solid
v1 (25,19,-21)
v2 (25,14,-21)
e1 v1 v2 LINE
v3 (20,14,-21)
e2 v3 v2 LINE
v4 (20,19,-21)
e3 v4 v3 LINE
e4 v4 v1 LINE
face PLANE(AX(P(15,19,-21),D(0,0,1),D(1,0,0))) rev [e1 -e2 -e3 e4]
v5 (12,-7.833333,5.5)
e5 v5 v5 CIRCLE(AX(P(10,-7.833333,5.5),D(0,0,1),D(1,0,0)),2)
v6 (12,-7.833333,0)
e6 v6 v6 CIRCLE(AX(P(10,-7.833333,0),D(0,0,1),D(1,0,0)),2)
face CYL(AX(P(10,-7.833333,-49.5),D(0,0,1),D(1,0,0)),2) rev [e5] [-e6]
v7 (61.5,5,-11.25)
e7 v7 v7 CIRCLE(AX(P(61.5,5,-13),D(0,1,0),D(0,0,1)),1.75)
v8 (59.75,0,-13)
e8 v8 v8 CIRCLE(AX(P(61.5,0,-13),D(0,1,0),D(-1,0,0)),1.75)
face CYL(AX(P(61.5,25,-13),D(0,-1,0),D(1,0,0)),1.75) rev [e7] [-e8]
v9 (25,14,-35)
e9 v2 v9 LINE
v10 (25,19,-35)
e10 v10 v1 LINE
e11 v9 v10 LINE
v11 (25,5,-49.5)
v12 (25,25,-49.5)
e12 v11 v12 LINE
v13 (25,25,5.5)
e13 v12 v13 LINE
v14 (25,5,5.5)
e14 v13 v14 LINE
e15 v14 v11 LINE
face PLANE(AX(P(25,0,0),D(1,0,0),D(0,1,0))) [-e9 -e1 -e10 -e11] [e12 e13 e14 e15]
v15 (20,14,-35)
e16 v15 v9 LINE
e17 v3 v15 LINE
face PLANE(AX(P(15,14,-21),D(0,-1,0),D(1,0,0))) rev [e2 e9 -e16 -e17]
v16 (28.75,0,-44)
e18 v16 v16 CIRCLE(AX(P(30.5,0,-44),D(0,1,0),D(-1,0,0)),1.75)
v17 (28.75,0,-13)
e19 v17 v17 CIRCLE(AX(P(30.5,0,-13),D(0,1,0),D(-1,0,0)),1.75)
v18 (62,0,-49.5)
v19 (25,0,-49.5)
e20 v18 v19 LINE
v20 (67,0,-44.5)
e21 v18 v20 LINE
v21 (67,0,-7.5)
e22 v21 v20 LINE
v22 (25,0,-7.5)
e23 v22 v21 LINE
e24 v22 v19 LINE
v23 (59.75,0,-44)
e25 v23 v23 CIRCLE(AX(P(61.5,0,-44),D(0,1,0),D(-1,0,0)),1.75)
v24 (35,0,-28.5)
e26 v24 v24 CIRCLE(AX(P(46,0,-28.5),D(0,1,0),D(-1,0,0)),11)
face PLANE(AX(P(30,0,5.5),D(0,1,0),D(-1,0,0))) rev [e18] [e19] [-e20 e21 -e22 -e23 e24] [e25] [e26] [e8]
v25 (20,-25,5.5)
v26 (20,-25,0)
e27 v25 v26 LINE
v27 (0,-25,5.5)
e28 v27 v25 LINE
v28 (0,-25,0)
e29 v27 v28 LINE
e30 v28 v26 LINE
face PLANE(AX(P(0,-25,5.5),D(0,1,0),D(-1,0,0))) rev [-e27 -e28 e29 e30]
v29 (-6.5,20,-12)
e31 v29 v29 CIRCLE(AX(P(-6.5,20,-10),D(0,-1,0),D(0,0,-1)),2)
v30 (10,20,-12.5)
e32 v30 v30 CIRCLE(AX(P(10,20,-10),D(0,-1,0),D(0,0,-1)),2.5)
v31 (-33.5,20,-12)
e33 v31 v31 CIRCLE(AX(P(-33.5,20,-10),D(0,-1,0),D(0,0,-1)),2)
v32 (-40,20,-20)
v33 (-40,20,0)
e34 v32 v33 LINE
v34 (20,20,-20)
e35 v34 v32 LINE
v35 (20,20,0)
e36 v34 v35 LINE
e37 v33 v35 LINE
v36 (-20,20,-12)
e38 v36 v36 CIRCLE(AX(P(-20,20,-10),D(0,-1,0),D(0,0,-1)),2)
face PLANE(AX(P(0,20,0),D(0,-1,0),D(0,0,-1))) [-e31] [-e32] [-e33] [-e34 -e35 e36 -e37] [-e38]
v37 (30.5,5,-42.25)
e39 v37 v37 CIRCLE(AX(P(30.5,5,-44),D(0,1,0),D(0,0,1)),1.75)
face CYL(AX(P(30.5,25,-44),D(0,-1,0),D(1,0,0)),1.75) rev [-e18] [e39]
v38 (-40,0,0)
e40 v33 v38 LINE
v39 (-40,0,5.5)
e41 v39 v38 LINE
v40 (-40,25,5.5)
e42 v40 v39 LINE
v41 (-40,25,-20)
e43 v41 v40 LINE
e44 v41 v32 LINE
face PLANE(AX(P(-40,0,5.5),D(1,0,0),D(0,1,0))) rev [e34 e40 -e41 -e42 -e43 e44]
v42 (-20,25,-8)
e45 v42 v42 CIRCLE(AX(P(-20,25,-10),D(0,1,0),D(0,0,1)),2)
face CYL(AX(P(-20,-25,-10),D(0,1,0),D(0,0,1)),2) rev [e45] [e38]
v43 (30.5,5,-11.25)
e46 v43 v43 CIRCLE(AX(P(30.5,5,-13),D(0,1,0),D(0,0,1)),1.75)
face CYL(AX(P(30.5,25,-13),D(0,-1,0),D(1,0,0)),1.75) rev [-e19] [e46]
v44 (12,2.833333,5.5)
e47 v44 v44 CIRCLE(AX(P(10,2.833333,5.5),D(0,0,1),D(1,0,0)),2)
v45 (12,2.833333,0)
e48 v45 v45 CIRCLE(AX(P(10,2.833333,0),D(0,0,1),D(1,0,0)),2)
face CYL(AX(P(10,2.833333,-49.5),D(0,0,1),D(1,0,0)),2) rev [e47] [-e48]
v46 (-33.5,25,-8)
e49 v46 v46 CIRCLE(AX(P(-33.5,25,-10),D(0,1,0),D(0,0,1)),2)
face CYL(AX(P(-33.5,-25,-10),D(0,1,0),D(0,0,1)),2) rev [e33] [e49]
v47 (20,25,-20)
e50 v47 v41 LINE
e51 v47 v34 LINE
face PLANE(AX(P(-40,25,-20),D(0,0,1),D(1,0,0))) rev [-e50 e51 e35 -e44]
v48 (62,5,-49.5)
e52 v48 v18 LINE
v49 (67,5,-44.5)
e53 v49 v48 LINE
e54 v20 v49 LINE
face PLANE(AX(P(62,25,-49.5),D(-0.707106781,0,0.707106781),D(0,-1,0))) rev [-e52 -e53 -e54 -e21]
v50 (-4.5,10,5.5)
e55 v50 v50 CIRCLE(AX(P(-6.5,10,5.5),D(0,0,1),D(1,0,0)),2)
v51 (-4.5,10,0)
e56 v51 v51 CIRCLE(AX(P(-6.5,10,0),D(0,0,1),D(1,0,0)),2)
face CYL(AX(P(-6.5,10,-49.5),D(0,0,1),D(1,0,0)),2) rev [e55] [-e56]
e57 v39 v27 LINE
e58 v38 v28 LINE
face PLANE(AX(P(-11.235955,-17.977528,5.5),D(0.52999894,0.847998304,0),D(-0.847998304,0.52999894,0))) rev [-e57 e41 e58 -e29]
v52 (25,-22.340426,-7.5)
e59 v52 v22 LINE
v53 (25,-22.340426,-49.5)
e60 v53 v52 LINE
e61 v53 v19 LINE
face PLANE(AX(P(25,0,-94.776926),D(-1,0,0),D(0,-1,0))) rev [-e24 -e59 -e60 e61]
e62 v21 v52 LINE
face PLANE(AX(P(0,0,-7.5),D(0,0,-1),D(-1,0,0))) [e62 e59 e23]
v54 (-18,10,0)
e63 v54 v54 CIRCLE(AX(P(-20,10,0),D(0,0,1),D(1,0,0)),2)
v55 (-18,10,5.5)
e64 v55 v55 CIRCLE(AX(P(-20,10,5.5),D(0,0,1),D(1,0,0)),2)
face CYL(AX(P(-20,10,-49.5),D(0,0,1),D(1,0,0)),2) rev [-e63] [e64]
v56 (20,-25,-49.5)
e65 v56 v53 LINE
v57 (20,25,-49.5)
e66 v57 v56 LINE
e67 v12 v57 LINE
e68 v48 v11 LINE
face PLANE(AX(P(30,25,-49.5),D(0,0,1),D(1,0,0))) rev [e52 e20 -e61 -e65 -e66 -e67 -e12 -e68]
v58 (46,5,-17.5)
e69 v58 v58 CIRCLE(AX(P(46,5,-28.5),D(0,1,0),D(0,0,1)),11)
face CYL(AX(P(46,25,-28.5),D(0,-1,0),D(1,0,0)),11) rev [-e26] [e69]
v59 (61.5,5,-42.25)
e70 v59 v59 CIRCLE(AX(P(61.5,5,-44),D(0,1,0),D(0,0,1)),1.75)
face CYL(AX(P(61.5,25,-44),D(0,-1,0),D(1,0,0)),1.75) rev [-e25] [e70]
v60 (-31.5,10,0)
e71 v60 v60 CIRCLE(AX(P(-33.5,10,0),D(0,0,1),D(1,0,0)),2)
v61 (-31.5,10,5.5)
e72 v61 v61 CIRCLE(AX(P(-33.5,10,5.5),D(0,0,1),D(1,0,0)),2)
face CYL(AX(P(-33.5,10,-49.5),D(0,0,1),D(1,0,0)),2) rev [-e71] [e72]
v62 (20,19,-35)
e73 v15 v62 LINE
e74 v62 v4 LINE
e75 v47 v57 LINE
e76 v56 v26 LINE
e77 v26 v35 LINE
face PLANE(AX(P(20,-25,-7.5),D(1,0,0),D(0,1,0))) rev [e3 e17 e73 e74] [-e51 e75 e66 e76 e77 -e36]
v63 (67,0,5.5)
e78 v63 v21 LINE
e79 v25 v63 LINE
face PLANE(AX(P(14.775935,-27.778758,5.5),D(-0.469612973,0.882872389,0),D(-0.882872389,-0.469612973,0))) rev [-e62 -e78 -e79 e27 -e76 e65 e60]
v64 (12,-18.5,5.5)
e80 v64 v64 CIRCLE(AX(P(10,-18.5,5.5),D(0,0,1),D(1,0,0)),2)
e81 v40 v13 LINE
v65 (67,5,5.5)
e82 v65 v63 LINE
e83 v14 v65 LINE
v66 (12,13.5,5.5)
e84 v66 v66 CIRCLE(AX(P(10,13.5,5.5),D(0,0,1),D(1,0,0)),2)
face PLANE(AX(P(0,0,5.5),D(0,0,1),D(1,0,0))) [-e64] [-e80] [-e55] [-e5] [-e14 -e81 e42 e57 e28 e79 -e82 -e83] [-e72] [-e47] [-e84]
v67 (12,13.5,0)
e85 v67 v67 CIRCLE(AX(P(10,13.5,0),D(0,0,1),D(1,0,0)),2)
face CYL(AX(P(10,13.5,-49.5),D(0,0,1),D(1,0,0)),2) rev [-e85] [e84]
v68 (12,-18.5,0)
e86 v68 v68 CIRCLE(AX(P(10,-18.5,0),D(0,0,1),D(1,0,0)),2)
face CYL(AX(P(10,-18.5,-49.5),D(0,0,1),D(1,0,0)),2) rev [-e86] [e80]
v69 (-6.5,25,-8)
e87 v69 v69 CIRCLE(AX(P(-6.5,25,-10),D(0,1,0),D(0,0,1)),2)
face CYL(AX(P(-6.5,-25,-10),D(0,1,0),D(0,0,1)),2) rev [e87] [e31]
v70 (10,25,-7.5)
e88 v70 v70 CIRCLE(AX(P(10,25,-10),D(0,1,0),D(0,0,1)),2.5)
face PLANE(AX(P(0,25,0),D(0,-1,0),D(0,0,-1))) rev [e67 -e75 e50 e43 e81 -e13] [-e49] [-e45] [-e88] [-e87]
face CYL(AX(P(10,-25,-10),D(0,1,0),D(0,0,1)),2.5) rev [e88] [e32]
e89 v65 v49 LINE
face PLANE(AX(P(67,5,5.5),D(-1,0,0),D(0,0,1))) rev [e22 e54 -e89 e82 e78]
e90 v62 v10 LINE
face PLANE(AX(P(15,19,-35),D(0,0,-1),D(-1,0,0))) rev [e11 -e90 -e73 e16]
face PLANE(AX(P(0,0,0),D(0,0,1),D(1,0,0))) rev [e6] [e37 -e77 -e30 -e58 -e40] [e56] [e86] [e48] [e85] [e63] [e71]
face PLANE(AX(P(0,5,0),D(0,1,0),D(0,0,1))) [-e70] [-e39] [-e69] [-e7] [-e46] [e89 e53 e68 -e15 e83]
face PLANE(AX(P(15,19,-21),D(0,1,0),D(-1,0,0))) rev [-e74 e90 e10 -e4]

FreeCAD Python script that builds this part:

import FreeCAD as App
import Part
import Sketcher

V = App.Vector


def edges_at(feature, points):
    """Names of the edges that pass closest to the given points."""
    edges = feature.Shape.Edges
    near = lambda p: min(range(len(edges)), key=lambda i: edges[i].distToShape(Part.Vertex(*p))[0])
    return sorted({f"Edge{near(p) + 1}" for p in points})


def add_polygon(sketch, points):
    """Adds a closed chain of lines whose ends are joined by coincident constraints."""
    first, n = sketch.GeometryCount, len(points)
    for a, b in zip(points, points[1:] + points[:1]):
        sketch.addGeometry(Part.LineSegment(App.Vector(*a, 0), App.Vector(*b, 0)), False)
    for i in range(n):
        sketch.addConstraint(Sketcher.Constraint("Coincident", first + i, 2, first + (i + 1) % n, 1))

doc = App.newDocument("Part")
body = doc.addObject("PartDesign::Body", "Body")

sketch1 = doc.addObject("Sketcher::SketchObject", "Sketch")
body.addObject(sketch1)
sketch1.AttachmentSupport = (doc.XY_Plane, [""])
sketch1.MapMode = "FlatFace"
add_polygon(sketch1, [(-40, 20), (-40, 0), (0, -25), (20, -25), (67, 0), (25, 0), (25, 20)])
sketch1.addConstraint([
    Sketcher.Constraint("Vertical", 0),
    Sketcher.Constraint("Horizontal", 2),
    Sketcher.Constraint("Horizontal", 4),
    Sketcher.Constraint("Vertical", 5),
    Sketcher.Constraint("Horizontal", 6),
    Sketcher.Constraint("PointOnObject", 0, 2, -1),
    Sketcher.Constraint("PointOnObject", 1, 2, -2),
    Sketcher.Constraint("PointOnObject", 3, 2, -1),
    Sketcher.Constraint("Equal", 2, 0),
    Sketcher.Constraint("DistanceX", 2, 1, 2, 2, 20.0),
    Sketcher.Constraint("DistanceX", 4, 2, 4, 1, 42.0),
    Sketcher.Constraint("DistanceX", 6, 2, 6, 1, 65.0),
    Sketcher.Constraint("DistanceX", 0, 2, -1, 1, 40.0),
    Sketcher.Constraint("DistanceY", 1, 2, -1, 1, 25.0),
])
pad1 = doc.addObject("PartDesign::Pad", "Pad")
body.addObject(pad1)
pad1.Profile = sketch1
pad1.Length = 5.5

sketch2 = doc.addObject("Sketcher::SketchObject", "Sketch001")
body.addObject(sketch2)
sketch2.AttachmentSupport = (doc.XZ_Plane, [""])
sketch2.MapMode = "FlatFace"
sketch2.AttachmentOffset = App.Placement(V(0, 0, -20), App.Rotation())
add_polygon(sketch2, [(-40, -20), (-40, 5.5), (25, 5.5), (25, -20)])
sketch2.addConstraint([
    Sketcher.Constraint("Vertical", 0),
    Sketcher.Constraint("Horizontal", 1),
    Sketcher.Constraint("Vertical", 2),
    Sketcher.Constraint("Horizontal", 3),
    Sketcher.Constraint("DistanceX", 1, 1, 1, 2, 65.0),
    Sketcher.Constraint("DistanceY", 0, 1, 0, 2, 25.5),
    Sketcher.Constraint("DistanceX", 0, 2, -1, 1, 40.0),
    Sketcher.Constraint("DistanceY", 2, 2, -1, 1, 20.0),
])
pad2 = doc.addObject("PartDesign::Pad", "Pad001")
body.addObject(pad2)
pad2.Profile = sketch2
pad2.Length = 5
pad2.Reversed = True

sketch3 = doc.addObject("Sketcher::SketchObject", "Sketch002")
body.addObject(sketch3)
sketch3.AttachmentSupport = (doc.YZ_Plane, [""])
sketch3.MapMode = "FlatFace"
sketch3.AttachmentOffset = App.Placement(V(0, 0, 25), App.Rotation())
add_polygon(sketch3, [(25, 5.5), (0, 5.5), (0, -49.5), (25, -49.5)])
sketch3.addConstraint([
    Sketcher.Constraint("Horizontal", 0),
    Sketcher.Constraint("Vertical", 1),
    Sketcher.Constraint("Horizontal", 2),
    Sketcher.Constraint("Vertical", 3),
    Sketcher.Constraint("PointOnObject", 0, 2, -2),
    Sketcher.Constraint("DistanceX", 0, 2, 0, 1, 25.0),
    Sketcher.Constraint("DistanceY", 1, 2, 1, 1, 55.0),
    Sketcher.Constraint("DistanceY", -1, 1, 0, 2, 5.5),
])
pad3 = doc.addObject("PartDesign::Pad", "Pad002")
body.addObject(pad3)
pad3.Profile = sketch3
pad3.Length = 5

sketch4 = doc.addObject("Sketcher::SketchObject", "Sketch003")
body.addObject(sketch4)
sketch4.AttachmentSupport = (doc.XZ_Plane, [""])
sketch4.MapMode = "FlatFace"
add_polygon(sketch4, [(25, -49.5), (25, 5.5), (67, 5.5), (67, -49.5)])
sketch4.addConstraint([
    Sketcher.Constraint("Vertical", 0),
    Sketcher.Constraint("Horizontal", 1),
    Sketcher.Constraint("Vertical", 2),
    Sketcher.Constraint("Horizontal", 3),
    Sketcher.Constraint("DistanceX", 1, 1, 1, 2, 42.0),
    Sketcher.Constraint("DistanceY", 0, 1, 0, 2, 55.0),
    Sketcher.Constraint("DistanceX", -1, 1, 0, 2, 25.0),
    Sketcher.Constraint("DistanceY", -1, 1, 0, 2, 5.5),
])
pad4 = doc.addObject("PartDesign::Pad", "Pad003")
body.addObject(pad4)
pad4.Profile = sketch4
pad4.Length = 5
pad4.Reversed = True

sketch5 = doc.addObject("Sketcher::SketchObject", "Sketch004")
body.addObject(sketch5)
sketch5.AttachmentSupport = (doc.XY_Plane, [""])
sketch5.MapMode = "FlatFace"
add_polygon(sketch5, [(20, -25), (20, 20), (25, 20), (25, 0), (67, 0)])
sketch5.addConstraint([
    Sketcher.Constraint("Vertical", 0),
    Sketcher.Constraint("Horizontal", 1),
    Sketcher.Constraint("Vertical", 2),
    Sketcher.Constraint("Horizontal", 3),
    Sketcher.Constraint("PointOnObject", 2, 2, -1),
    Sketcher.Constraint("DistanceX", 1, 1, 1, 2, 5.0),
    Sketcher.Constraint("DistanceX", 3, 1, 3, 2, 42.0),
    Sketcher.Constraint("DistanceY", 0, 1, 0, 2, 45.0),
    Sketcher.Constraint("DistanceY", 2, 2, 2, 1, 20.0),
    Sketcher.Constraint("DistanceX", -1, 1, 0, 2, 20.0),
])
pad5 = doc.addObject("PartDesign::Pad", "Pad004")
body.addObject(pad5)
pad5.Profile = sketch5
pad5.Length = 7.5
pad5.Reversed = True

sketch6 = doc.addObject("Sketcher::SketchObject", "Sketch005")
body.addObject(sketch6)
sketch6.AttachmentSupport = (doc.XY_Plane, [""])
sketch6.MapMode = "FlatFace"
sketch6.AttachmentOffset = App.Placement(V(0, 0, -7.5), App.Rotation())
add_polygon(sketch6, [(25, -22.340426), (20, -25), (20, 20), (25, 20)])
sketch6.addConstraint([
    Sketcher.Constraint("Vertical", 1),
    Sketcher.Constraint("Horizontal", 2),
    Sketcher.Constraint("Vertical", 3),
    Sketcher.Constraint("DistanceX", 2, 1, 2, 2, 5.0),
    Sketcher.Constraint("DistanceY", 1, 1, 1, 2, 45.0),
    Sketcher.Constraint("DistanceX", -1, 1, 0, 2, 20.0),
    Sketcher.Constraint("DistanceY", 0, 2, -1, 1, 25.0),
    Sketcher.Constraint("DistanceY", 3, 2, 3, 1, 42.340426),
])
pad6 = doc.addObject("PartDesign::Pad", "Pad005")
body.addObject(pad6)
pad6.Profile = sketch6
pad6.Length = 42
pad6.Reversed = True

sketch7 = doc.addObject("Sketcher::SketchObject", "Sketch006")
body.addObject(sketch7)
sketch7.AttachmentSupport = (doc.XZ_Plane, [""])
sketch7.MapMode = "FlatFace"
sketch7.AttachmentOffset = App.Placement(V(0, 0, -20), App.Rotation())
add_polygon(sketch7, [(20, -49.5), (20, -20), (25, -20), (25, -49.5)])
sketch7.addConstraint([
    Sketcher.Constraint("Vertical", 0),
    Sketcher.Constraint("Horizontal", 1),
    Sketcher.Constraint("Vertical", 2),
    Sketcher.Constraint("Horizontal", 3),
    Sketcher.Constraint("DistanceX", 1, 1, 1, 2, 5.0),
    Sketcher.Constraint("DistanceY", 0, 1, 0, 2, 29.5),
    Sketcher.Constraint("DistanceX", -1, 1, 0, 2, 20.0),
    Sketcher.Constraint("DistanceY", 0, 2, -1, 1, 20.0),
])
pad7 = doc.addObject("PartDesign::Pad", "Pad006")
body.addObject(pad7)
pad7.Profile = sketch7
pad7.Length = 5
pad7.Reversed = True

sketch8 = doc.addObject("Sketcher::SketchObject", "Sketch007")
body.addObject(sketch8)
sketch8.AttachmentSupport = (doc.YZ_Plane, [""])
sketch8.MapMode = "FlatFace"
sketch8.AttachmentOffset = App.Placement(V(0, 0, 30), App.Rotation())
add_polygon(sketch8, [(25, 5.5), (5, 5.5), (5, -49.5), (25, -49.5)])
sketch8.addConstraint([
    Sketcher.Constraint("Horizontal", 0),
    Sketcher.Constraint("Vertical", 1),
    Sketcher.Constraint("Horizontal", 2),
    Sketcher.Constraint("Vertical", 3),
    Sketcher.Constraint("DistanceX", 0, 2, 0, 1, 20.0),
    Sketcher.Constraint("DistanceY", 1, 2, 1, 1, 55.0),
    Sketcher.Constraint("DistanceX", -1, 1, 0, 2, 5.0),
    Sketcher.Constraint("DistanceY", -1, 1, 0, 2, 5.5),
])
pocket1 = doc.addObject("PartDesign::Pocket", "Pocket")
body.addObject(pocket1)
pocket1.Profile = sketch8
pocket1.Length = 5

sketch9 = doc.addObject("Sketcher::SketchObject", "Sketch008")
body.addObject(sketch9)
sketch9.AttachmentSupport = (doc.XZ_Plane, [""])
sketch9.MapMode = "FlatFace"
sketch9.AttachmentOffset = App.Placement(V(0, 0, -25), App.Rotation())
sketch9.addGeometry([
    Part.Circle(V(10, -10, 0), V(0, 0, 1), 2.5),
    Part.Circle(V(-33.5, -10, 0), V(0, 0, 1), 2),
    Part.Circle(V(-20, -10, 0), V(0, 0, 1), 2),
    Part.Circle(V(-6.5, -10, 0), V(0, 0, 1), 2),
], False)
sketch9.addConstraint([
    Sketcher.Constraint("Equal", 1, 2),
    Sketcher.Constraint("Equal", 2, 3),
    Sketcher.Constraint("Horizontal", 0, 3, 1, 3),
    Sketcher.Constraint("Horizontal", 1, 3, 2, 3),
    Sketcher.Constraint("Horizontal", 2, 3, 3, 3),
    Sketcher.Constraint("Diameter", 0, 5.0),
    Sketcher.Constraint("Diameter", 1, 4.0),
    Sketcher.Constraint("DistanceX", -1, 1, 0, 3, 10.0),
    Sketcher.Constraint("DistanceY", 0, 3, -1, 1, 10.0),
    Sketcher.Constraint("DistanceX", 2, 3, -1, 1, 20.0),
    Sketcher.Constraint("DistanceX", 1, 3, 3, 3, 27.0),
    Sketcher.Constraint("DistanceX", 1, 3, -1, 1, 33.5),
])
pocket2 = doc.addObject("PartDesign::Pocket", "Pocket001")
body.addObject(pocket2)
pocket2.Profile = sketch9
pocket2.Type = "ThroughAll"
pocket2.Reversed = True

sketch10 = doc.addObject("Sketcher::SketchObject", "Sketch009")
body.addObject(sketch10)
sketch10.AttachmentSupport = (doc.XY_Plane, [""])
sketch10.MapMode = "FlatFace"
sketch10.AttachmentOffset = App.Placement(V(0, 0, 5.5), App.Rotation())
sketch10.addGeometry([
    Part.Circle(V(-33.5, 10, 0), V(0, 0, 1), 2),
    Part.Circle(V(-20, 10, 0), V(0, 0, 1), 2),
    Part.Circle(V(-6.5, 10, 0), V(0, 0, 1), 2),
    Part.Circle(V(10, -18.5, 0), V(0, 0, 1), 2),
    Part.Circle(V(10, -7.833333, 0), V(0, 0, 1), 2),
    Part.Circle(V(10, 2.833333, 0), V(0, 0, 1), 2),
    Part.Circle(V(10, 13.5, 0), V(0, 0, 1), 2),
], False)
sketch10.addConstraint([
    Sketcher.Constraint("Equal", 0, 1),
    Sketcher.Constraint("Equal", 1, 2),
    Sketcher.Constraint("Equal", 2, 3),
    Sketcher.Constraint("Equal", 3, 4),
    Sketcher.Constraint("Equal", 4, 5),
    Sketcher.Constraint("Equal", 5, 6),
    Sketcher.Constraint("Horizontal", 0, 3, 1, 3),
    Sketcher.Constraint("Horizontal", 1, 3, 2, 3),
    Sketcher.Constraint("Vertical", 3, 3, 4, 3),
    Sketcher.Constraint("Vertical", 4, 3, 5, 3),
    Sketcher.Constraint("Vertical", 5, 3, 6, 3),
    Sketcher.Constraint("Diameter", 0, 4.0),
    Sketcher.Constraint("DistanceY", -1, 1, 0, 3, 10.0),
    Sketcher.Constraint("DistanceX", 1, 3, -1, 1, 20.0),
    Sketcher.Constraint("DistanceX", -1, 1, 3, 3, 10.0),
    Sketcher.Constraint("DistanceX", 0, 3, 2, 3, 27.0),
    Sketcher.Constraint("DistanceY", 3, 3, 6, 3, 32.0),
    Sketcher.Constraint("DistanceX", 0, 3, -1, 1, 33.5),
    Sketcher.Constraint("DistanceY", 3, 3, -1, 1, 18.5),
    Sketcher.Constraint("DistanceY", 4, 3, -1, 1, 7.833333),
    Sketcher.Constraint("DistanceY", -1, 1, 5, 3, 2.833333),
])
pocket3 = doc.addObject("PartDesign::Pocket", "Pocket002")
body.addObject(pocket3)
pocket3.Profile = sketch10
pocket3.Type = "ThroughAll"

sketch11 = doc.addObject("Sketcher::SketchObject", "Sketch010")
body.addObject(sketch11)
sketch11.AttachmentSupport = (doc.XZ_Plane, [""])
sketch11.MapMode = "FlatFace"
sketch11.addGeometry([
    Part.Circle(V(61.5, -44, 0), V(0, 0, 1), 1.75),
    Part.Circle(V(61.5, -13, 0), V(0, 0, 1), 1.75),
    Part.Circle(V(30.5, -13, 0), V(0, 0, 1), 1.75),
    Part.Circle(V(30.5, -44, 0), V(0, 0, 1), 1.75),
    Part.Circle(V(46, -28.5, 0), V(0, 0, 1), 11),
], False)
sketch11.addConstraint([
    Sketcher.Constraint("Equal", 0, 1),
    Sketcher.Constraint("Equal", 1, 2),
    Sketcher.Constraint("Equal", 2, 3),
    Sketcher.Constraint("Horizontal", 1, 3, 2, 3),
    Sketcher.Constraint("Horizontal", 0, 3, 3, 3),
    Sketcher.Constraint("Vertical", 0, 3, 1, 3),
    Sketcher.Constraint("Vertical", 2, 3, 3, 3),
    Sketcher.Constraint("Diameter", 4, 22.0),
    Sketcher.Constraint("Diameter", 0, 3.5),
    Sketcher.Constraint("DistanceY", 0, 3, -1, 1, 44.0),
    Sketcher.Constraint("DistanceY", 1, 3, -1, 1, 13.0),
    Sketcher.Constraint("DistanceX", -1, 1, 4, 3, 46.0),
    Sketcher.Constraint("DistanceX", 2, 3, 1, 3, 31.0),
    Sketcher.Constraint("DistanceX", -1, 1, 0, 3, 61.5),
    Sketcher.Constraint("DistanceY", 4, 3, -1, 1, 28.5),
])
pocket4 = doc.addObject("PartDesign::Pocket", "Pocket003")
body.addObject(pocket4)
pocket4.Profile = sketch11
pocket4.Type = "ThroughAll"
pocket4.Midplane = True
doc.recompute()

chamfer = doc.addObject("PartDesign::Chamfer", "Chamfer")
body.addObject(chamfer)
chamfer.Base = (pocket4, edges_at(pocket4, [(67, 2.5, -49.5)]))
chamfer.Size = 5

sketch12 = doc.addObject("Sketcher::SketchObject", "Sketch011")
body.addObject(sketch12)
sketch12.AttachmentSupport = (doc.YZ_Plane, [""])
sketch12.MapMode = "FlatFace"
sketch12.AttachmentOffset = App.Placement(V(0, 0, 25), App.Rotation())
add_polygon(sketch12, [(19, -21), (14, -21), (14, -35), (19, -35)])
sketch12.addConstraint([
    Sketcher.Constraint("Horizontal", 0),
    Sketcher.Constraint("Vertical", 1),
    Sketcher.Constraint("Horizontal", 2),
    Sketcher.Constraint("Vertical", 3),
    Sketcher.Constraint("DistanceX", 0, 2, 0, 1, 5.0),
    Sketcher.Constraint("DistanceY", 1, 2, 1, 1, 14.0),
    Sketcher.Constraint("DistanceX", -1, 1, 0, 2, 14.0),
    Sketcher.Constraint("DistanceY", 0, 2, -1, 1, 21.0),
])
pocket5 = doc.addObject("PartDesign::Pocket", "Pocket004")
body.addObject(pocket5)
pocket5.Profile = sketch12
pocket5.Length = 10

doc.recompute()
